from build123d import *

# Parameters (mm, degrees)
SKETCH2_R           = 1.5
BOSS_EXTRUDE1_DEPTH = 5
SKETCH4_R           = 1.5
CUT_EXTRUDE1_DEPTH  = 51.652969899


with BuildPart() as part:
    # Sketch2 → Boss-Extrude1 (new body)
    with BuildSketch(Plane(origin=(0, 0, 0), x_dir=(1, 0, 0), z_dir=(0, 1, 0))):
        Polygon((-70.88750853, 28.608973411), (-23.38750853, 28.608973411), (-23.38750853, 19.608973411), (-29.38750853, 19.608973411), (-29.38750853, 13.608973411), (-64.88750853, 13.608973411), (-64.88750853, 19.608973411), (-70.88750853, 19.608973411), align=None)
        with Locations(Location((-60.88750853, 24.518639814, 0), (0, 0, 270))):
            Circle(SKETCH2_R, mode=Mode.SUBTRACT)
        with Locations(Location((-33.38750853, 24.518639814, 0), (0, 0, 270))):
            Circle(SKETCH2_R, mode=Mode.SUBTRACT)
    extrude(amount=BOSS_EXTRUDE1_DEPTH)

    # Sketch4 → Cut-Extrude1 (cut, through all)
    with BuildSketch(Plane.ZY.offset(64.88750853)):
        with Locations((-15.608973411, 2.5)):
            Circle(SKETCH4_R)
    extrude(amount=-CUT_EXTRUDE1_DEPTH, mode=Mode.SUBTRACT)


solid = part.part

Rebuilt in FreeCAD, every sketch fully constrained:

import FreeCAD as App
import Part
import Sketcher


def add_polygon(sketch, points):
    """Adds a closed chain of lines whose ends are joined by coincident constraints."""
    first, n = sketch.GeometryCount, len(points)
    for a, b in zip(points, points[1:] + points[:1]):
        sketch.addGeometry(Part.LineSegment(App.Vector(*a, 0), App.Vector(*b, 0)), False)
    for i in range(n):
        sketch.addConstraint(Sketcher.Constraint("Coincident", first + i, 2, first + (i + 1) % n, 1))

doc = App.newDocument("Part")
params = doc.addObject("Spreadsheet::Sheet", "Params")
for row, (alias, value) in enumerate([
    ("sketch1_diameter", "3 mm"),
    ("sketch1_width", "6 mm"),
    ("sketch1_height", "9 mm"),
    ("sketch1_width2", "47.5 mm"),
    ("pad1_length", "5 mm"),
    ("sketch2_diameter", "3 mm"),
], start=1):
    params.set(f"A{row}", alias)
    params.set(f"B{row}", "=" + value)
    params.setAlias(f"B{row}", alias)

body = doc.addObject("PartDesign::Body", "Body")

sketch1 = doc.addObject("Sketcher::SketchObject", "Sketch")
body.addObject(sketch1)
sketch1.AttachmentSupport = (doc.XZ_Plane, [""])
sketch1.MapMode = "FlatFace"
add_polygon(sketch1, [(-23.387509, -28.608973), (-70.887509, -28.608973), (-70.887509, -19.608973), (-64.887509, -19.608973), (-64.887509, -13.608973), (-29.387509, -13.608973), (-29.387509, -19.608973), (-23.387509, -19.608973)])
sketch1.addGeometry(Part.Circle(App.Vector(-33.387509, -24.51864, 0), App.Vector(0, 0, 1), 1.5), False)
sketch1.addGeometry(Part.Circle(App.Vector(-60.887509, -24.51864, 0), App.Vector(0, 0, 1), 1.5), False)
sketch1.addConstraint(Sketcher.Constraint("Horizontal", 0))
sketch1.addConstraint(Sketcher.Constraint("Vertical", 1))
sketch1.addConstraint(Sketcher.Constraint("Horizontal", 2))
sketch1.addConstraint(Sketcher.Constraint("Vertical", 3))
sketch1.addConstraint(Sketcher.Constraint("Horizontal", 4))
sketch1.addConstraint(Sketcher.Constraint("Vertical", 5))
sketch1.addConstraint(Sketcher.Constraint("Horizontal", 6))
sketch1.addConstraint(Sketcher.Constraint("Vertical", 7))
sketch1.addConstraint(Sketcher.Constraint("Equal", 8, 9))
sketch1.addConstraint(Sketcher.Constraint("Horizontal", 8, 3, 9, 3))
sketch1.addConstraint(Sketcher.Constraint("Horizontal", 2, 2, 5, 2))
sketch1.addConstraint(Sketcher.Constraint("Equal", 2, 6))
sketch1.addConstraint(Sketcher.Constraint("Equal", 6, 3))
sketch1.addConstraint(Sketcher.Constraint("Diameter", 8, 3.0))
sketch1.addConstraint(Sketcher.Constraint("DistanceX", 2, 1, 2, 2, 6.0))
sketch1.addConstraint(Sketcher.Constraint("DistanceY", 1, 1, 1, 2, 9.0))
sketch1.addConstraint(Sketcher.Constraint("DistanceX", 0, 2, 0, 1, 47.5))
sketch1.addConstraint(Sketcher.Constraint("DistanceX", 0, 2, 9, 3, 10.0))
sketch1.addConstraint(Sketcher.Constraint("DistanceX", 8, 3, 4, 2, 4.0))
sketch1.addConstraint(Sketcher.Constraint("DistanceX", 8, 3, -1, 1, 33.387509))
sketch1.addConstraint(Sketcher.Constraint("DistanceY", 8, 3, -1, 1, 24.51864))
sketch1.addConstraint(Sketcher.Constraint("DistanceY", 0, 2, -1, 1, 28.608973))
sketch1.setExpression("Constraints[21]", "Params.sketch1_diameter")
sketch1.setExpression("Constraints[22]", "Params.sketch1_width")
sketch1.setExpression("Constraints[23]", "Params.sketch1_height")
sketch1.setExpression("Constraints[24]", "Params.sketch1_width2")
pad1 = doc.addObject("PartDesign::Pad", "Pad")
body.addObject(pad1)
pad1.Profile = sketch1
pad1.setExpression("Length", "Params.pad1_length")
pad1.Reversed = True

sketch2 = doc.addObject("Sketcher::SketchObject", "Sketch001")
body.addObject(sketch2)
sketch2.AttachmentSupport = (doc.YZ_Plane, [""])
sketch2.MapMode = "FlatFace"
sketch2.AttachmentOffset = App.Placement(App.Vector(0, 0, -64.887509), App.Rotation())
sketch2.addGeometry(Part.Circle(App.Vector(2.5, -15.608973, 0), App.Vector(0, 0, 1), 1.5), False)
sketch2.addConstraint(Sketcher.Constraint("Diameter", 0, 3.0))
sketch2.addConstraint(Sketcher.Constraint("DistanceX", -1, 1, 0, 3, 2.5))
sketch2.addConstraint(Sketcher.Constraint("DistanceY", 0, 3, -1, 1, 15.608973))
sketch2.setExpression("Constraints[0]", "Params.sketch2_diameter")
pocket1 = doc.addObject("PartDesign::Pocket", "Pocket")
body.addObject(pocket1)
pocket1.Profile = sketch2
pocket1.Type = "ThroughAll"
pocket1.Reversed = True

doc.recompute()
